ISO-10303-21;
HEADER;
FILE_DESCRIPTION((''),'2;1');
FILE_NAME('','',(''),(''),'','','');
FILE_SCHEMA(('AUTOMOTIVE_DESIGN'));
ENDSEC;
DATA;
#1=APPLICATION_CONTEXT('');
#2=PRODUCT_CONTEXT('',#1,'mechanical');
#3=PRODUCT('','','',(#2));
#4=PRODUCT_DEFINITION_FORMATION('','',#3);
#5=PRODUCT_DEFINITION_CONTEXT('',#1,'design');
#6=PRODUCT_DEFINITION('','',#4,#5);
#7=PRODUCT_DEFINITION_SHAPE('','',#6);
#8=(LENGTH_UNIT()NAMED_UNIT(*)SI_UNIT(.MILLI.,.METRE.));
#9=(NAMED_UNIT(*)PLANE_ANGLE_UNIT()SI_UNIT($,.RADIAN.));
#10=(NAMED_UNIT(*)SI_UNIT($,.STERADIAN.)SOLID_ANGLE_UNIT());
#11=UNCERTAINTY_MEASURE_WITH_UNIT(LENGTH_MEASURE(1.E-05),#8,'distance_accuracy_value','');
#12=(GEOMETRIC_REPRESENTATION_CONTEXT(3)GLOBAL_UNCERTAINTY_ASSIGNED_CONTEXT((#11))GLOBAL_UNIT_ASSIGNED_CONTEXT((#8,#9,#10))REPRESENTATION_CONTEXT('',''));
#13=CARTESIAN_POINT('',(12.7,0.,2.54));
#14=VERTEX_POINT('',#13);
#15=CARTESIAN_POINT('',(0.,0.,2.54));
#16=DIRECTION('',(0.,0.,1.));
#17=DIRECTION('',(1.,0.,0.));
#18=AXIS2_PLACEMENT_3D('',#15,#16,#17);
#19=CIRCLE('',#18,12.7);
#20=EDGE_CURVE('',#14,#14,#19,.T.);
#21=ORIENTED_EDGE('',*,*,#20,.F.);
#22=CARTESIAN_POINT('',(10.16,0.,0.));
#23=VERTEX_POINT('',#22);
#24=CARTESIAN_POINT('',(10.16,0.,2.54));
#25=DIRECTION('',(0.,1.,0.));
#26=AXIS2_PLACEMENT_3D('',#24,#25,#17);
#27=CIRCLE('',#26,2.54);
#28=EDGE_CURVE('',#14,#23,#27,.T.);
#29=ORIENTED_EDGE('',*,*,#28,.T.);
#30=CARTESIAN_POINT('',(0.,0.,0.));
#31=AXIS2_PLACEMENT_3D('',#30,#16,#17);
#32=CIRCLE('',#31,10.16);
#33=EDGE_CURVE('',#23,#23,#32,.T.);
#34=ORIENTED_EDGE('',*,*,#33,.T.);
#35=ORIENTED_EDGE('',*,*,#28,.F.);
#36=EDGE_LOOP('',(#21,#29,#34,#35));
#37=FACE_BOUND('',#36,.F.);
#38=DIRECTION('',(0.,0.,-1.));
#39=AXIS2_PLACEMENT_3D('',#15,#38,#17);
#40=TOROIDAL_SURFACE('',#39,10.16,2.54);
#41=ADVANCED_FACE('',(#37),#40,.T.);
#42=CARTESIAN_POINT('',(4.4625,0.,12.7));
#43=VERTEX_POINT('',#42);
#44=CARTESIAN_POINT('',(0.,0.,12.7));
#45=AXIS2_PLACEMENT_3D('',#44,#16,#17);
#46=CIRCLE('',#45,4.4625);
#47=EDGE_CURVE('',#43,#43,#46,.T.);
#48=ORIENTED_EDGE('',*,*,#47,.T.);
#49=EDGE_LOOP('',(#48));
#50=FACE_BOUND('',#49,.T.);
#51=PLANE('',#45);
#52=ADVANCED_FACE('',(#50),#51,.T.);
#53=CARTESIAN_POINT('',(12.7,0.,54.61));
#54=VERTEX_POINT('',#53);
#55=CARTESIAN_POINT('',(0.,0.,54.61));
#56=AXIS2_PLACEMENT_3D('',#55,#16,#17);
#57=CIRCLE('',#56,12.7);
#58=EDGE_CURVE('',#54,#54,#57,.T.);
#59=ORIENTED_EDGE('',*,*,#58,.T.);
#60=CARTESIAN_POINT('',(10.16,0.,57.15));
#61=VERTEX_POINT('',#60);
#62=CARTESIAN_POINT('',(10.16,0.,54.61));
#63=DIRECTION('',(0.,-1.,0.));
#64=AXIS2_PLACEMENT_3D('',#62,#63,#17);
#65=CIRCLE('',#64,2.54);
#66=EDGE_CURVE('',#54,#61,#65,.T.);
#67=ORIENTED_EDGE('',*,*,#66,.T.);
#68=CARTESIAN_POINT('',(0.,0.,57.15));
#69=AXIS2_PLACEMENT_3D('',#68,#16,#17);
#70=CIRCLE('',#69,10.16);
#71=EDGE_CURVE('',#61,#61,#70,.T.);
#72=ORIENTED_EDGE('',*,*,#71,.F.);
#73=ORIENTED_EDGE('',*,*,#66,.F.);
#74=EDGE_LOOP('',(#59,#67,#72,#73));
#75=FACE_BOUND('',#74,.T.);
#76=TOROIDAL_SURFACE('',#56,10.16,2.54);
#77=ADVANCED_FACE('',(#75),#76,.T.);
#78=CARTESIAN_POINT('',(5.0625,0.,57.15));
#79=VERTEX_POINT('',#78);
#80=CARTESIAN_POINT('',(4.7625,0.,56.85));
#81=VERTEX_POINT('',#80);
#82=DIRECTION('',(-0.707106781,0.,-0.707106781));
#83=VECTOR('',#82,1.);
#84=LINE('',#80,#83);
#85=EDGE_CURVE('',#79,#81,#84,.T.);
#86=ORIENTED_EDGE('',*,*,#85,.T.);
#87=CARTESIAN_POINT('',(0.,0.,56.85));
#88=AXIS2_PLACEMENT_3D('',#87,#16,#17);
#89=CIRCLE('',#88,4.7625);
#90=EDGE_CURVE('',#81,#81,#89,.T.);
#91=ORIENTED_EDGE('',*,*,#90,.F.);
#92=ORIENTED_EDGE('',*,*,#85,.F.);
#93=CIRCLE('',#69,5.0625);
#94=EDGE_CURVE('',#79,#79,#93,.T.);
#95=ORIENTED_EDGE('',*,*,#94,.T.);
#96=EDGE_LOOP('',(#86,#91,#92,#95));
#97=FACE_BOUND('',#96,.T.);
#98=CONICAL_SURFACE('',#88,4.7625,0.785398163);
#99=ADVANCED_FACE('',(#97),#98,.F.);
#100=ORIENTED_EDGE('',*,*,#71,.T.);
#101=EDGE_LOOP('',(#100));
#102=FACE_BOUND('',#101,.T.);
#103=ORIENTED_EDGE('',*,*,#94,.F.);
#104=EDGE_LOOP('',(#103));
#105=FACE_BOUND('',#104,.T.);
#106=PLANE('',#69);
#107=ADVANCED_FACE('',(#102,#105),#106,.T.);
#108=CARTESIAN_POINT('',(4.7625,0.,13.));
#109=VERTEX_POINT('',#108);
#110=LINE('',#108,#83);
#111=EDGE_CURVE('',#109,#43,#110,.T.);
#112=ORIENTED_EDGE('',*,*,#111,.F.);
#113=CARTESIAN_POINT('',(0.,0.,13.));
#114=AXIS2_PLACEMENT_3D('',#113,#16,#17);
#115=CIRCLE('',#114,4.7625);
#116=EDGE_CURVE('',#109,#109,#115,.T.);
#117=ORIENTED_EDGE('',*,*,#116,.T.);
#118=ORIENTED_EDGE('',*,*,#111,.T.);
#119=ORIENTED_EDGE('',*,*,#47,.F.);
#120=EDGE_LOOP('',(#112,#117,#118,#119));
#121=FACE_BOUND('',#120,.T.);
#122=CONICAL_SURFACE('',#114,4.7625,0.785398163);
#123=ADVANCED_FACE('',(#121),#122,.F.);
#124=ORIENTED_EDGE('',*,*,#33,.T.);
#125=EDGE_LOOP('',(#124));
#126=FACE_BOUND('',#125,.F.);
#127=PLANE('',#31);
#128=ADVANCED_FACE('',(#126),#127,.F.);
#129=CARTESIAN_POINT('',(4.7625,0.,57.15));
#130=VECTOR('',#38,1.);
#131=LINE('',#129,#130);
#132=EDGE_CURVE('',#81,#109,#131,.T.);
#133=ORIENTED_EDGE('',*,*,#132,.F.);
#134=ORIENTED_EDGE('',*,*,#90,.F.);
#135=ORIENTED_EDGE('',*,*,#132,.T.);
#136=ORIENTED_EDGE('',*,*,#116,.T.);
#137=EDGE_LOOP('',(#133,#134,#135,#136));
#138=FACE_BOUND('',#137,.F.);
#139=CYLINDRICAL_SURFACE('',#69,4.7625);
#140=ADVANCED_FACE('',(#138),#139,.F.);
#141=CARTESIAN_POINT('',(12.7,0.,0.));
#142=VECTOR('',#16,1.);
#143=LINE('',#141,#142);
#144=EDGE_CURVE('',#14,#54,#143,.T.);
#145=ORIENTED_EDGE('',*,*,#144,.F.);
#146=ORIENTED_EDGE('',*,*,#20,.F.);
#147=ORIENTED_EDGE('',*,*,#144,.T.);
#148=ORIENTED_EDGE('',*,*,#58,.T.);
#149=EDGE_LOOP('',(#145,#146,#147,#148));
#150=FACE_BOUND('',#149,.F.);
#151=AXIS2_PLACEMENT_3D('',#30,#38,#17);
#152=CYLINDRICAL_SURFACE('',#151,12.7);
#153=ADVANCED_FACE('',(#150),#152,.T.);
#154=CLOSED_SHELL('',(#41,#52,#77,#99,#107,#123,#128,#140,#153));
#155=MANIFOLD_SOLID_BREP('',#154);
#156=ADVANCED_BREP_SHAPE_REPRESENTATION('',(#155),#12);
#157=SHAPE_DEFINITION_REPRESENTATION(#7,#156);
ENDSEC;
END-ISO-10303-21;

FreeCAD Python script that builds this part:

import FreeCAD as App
import Part
import Sketcher
Q = App.Units.Quantity


def edges_at(feature, points):
    """Names of the edges that pass closest to the given points."""
    edges = feature.Shape.Edges
    near = lambda p: min(range(len(edges)), key=lambda i: edges[i].distToShape(Part.Vertex(*p))[0])
    return sorted({f"Edge{near(p) + 1}" for p in points})

doc = App.newDocument("Part")
body = doc.addObject("PartDesign::Body", "Body")

# Sketch on XY plane
sketch1 = body.newObject("Sketcher::SketchObject", "Sketch")
sketch1.AttachmentSupport = (doc.getObject("XY_Plane"), [""])
sketch1.MapMode = "FlatFace"
sketch1.addGeometry(Part.Circle(App.Vector(0, 0, 0), App.Vector(0, 0, 1), 13), False)
sketch1.addConstraint([
    Sketcher.Constraint("Coincident", 0, 3, -1, 1),
    Sketcher.Constraint("Diameter", 0, Q("1 in")),
])
pad1 = body.newObject("PartDesign::Pad", "Pad")
pad1.Profile = sketch1
pad1.Length = Q("2.25 in")

# Sketch on XY plane
sketch2 = body.newObject("Sketcher::SketchObject", "Sketch001")
sketch2.AttachmentSupport = (doc.getObject("XY_Plane"), [""])
sketch2.MapMode = "FlatFace"
sketch2.AttachmentOffset = App.Placement(App.Vector(0, 0, 2.25 * 25.4), App.Rotation())
sketch2.addGeometry(Part.Circle(App.Vector(0, 0, 0), App.Vector(0, 0, 1), 4.8), False)
sketch2.addConstraint([
    Sketcher.Constraint("Coincident", 0, 3, -1, 1),
    Sketcher.Constraint("Diameter", 0, Q("0.375 in")),
])
pocket1 = body.newObject("PartDesign::Pocket", "Pocket")
pocket1.Profile = sketch2
pocket1.Length = Q("1.75 in")
doc.recompute()

fillet = body.newObject("PartDesign::Fillet", "Fillet")
fillet.Base = (pocket1, edges_at(pocket1, [(-12.7, 0, 0), (-12.7, 0, 57.15)]))
fillet.Radius = Q("0.1 in")
doc.recompute()

chamfer = body.newObject("PartDesign::Chamfer", "Chamfer")
chamfer.Base = (fillet, edges_at(fillet, [(-4.763, 0, 12.7), (-10.16, 0, 57.15), (-4.763, 0, 57.15)]))
chamfer.Size = 0.3

doc.recompute()
